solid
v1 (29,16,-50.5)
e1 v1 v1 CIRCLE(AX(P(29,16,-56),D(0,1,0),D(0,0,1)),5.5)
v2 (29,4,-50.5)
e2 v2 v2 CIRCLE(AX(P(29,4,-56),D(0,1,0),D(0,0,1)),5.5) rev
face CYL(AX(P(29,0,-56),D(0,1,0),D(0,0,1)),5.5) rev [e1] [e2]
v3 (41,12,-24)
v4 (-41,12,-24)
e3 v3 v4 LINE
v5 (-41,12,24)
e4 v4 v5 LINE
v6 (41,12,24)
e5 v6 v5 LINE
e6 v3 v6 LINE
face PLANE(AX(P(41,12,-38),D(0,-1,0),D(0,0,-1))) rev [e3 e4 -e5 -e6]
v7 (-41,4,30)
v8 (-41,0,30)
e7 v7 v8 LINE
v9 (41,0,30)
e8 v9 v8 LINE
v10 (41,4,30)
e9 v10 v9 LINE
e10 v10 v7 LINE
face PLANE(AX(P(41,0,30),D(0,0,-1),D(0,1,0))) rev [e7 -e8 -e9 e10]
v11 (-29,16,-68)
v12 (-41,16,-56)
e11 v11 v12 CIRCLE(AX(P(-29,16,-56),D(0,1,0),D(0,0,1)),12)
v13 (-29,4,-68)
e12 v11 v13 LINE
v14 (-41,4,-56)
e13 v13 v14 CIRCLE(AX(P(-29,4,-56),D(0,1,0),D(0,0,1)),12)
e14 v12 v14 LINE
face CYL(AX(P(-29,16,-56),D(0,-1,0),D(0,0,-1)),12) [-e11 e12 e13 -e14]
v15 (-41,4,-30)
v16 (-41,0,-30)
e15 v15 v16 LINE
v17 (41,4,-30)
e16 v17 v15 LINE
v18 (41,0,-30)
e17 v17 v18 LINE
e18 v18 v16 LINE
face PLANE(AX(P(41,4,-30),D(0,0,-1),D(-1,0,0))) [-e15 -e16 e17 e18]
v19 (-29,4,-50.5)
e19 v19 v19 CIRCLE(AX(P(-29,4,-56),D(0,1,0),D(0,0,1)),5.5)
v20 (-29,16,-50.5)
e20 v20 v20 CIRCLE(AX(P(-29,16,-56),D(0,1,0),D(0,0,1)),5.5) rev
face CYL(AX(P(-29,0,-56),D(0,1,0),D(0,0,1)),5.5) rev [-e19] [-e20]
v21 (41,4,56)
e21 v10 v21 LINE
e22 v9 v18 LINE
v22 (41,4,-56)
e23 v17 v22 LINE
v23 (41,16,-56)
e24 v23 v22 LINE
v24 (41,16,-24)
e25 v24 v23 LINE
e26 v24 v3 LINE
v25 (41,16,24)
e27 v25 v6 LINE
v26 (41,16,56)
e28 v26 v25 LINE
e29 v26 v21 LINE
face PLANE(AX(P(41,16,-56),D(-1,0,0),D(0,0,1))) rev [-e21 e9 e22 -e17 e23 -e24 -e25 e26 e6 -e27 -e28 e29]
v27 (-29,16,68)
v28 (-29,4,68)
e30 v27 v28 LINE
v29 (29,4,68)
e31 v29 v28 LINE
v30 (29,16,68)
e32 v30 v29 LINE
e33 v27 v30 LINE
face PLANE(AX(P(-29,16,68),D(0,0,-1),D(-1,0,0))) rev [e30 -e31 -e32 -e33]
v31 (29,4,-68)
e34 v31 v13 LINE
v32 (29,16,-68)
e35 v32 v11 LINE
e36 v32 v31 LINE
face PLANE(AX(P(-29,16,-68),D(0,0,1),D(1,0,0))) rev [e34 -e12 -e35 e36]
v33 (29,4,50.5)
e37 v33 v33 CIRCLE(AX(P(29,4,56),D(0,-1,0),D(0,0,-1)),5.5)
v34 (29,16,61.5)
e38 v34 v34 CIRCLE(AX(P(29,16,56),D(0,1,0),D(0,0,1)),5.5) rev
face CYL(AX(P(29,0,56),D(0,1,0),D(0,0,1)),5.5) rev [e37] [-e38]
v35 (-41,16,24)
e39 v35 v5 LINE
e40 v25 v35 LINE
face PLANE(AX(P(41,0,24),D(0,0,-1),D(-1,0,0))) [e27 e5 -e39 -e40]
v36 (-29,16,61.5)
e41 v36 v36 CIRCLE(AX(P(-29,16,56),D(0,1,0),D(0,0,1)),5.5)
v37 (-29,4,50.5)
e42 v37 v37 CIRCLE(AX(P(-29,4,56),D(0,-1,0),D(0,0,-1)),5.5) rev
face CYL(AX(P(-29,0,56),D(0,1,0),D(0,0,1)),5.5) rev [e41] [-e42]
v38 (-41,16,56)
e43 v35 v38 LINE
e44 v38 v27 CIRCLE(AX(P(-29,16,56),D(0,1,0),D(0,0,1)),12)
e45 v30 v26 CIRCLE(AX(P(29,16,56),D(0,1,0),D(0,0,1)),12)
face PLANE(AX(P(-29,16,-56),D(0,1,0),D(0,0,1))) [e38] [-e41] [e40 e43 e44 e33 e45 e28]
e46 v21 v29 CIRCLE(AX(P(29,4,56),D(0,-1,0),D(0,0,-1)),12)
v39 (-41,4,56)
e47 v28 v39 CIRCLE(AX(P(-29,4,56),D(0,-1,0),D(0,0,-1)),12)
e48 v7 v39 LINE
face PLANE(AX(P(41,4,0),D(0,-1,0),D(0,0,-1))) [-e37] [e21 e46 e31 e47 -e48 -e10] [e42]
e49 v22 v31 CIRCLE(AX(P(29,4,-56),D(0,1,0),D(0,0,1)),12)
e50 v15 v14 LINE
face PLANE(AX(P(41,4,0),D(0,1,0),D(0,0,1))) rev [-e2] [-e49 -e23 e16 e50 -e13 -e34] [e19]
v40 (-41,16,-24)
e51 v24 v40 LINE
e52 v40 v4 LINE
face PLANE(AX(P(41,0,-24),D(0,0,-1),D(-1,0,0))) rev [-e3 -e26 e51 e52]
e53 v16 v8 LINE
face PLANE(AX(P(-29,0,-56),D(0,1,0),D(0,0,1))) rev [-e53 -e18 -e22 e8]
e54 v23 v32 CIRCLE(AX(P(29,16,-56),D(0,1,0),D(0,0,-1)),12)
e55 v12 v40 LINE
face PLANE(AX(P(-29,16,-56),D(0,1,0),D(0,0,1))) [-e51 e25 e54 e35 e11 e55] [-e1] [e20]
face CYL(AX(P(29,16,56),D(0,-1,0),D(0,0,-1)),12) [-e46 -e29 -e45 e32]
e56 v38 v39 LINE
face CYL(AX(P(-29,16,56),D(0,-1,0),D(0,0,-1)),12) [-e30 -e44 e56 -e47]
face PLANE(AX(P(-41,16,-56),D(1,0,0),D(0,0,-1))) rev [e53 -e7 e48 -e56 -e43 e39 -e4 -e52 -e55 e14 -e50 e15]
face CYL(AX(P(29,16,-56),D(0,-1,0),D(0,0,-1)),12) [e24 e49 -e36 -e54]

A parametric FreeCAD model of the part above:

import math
import FreeCAD as App
import Part
import Sketcher

V = App.Vector
Q = App.Units.Quantity

doc = App.newDocument("Part")
params = doc.addObject("Spreadsheet::Sheet", "Params")
for row, (alias, value) in enumerate([
    ("sketch1_radius", "12 mm"),
    ("sketch1_width", "58 mm"),
    ("sketch1_height", "112 mm"),
    ("pad1_length", "16 mm"),
    ("sketch2_diameter", "11 mm"),
    ("sketch3_width", "4 mm"),
    ("sketch3_height", "76 mm"),
    ("sketch4_width", "4 mm"),
    ("sketch4_height", "30 mm"),
    ("sketch5_width", "4 mm"),
    ("sketch5_height", "8 mm"),
    ("sketch6_width", "4 mm"),
    ("sketch6_height", "7 mm"),
    ("pad2_length", "82 mm"),
    ("sketch7_width", "4 mm"),
    ("sketch7_height", "7 mm"),
    ("pad3_length", "82 mm"),
], start=1):
    params.set(f"A{row}", alias)
    params.set(f"B{row}", "=" + value)
    params.setAlias(f"B{row}", alias)

body = doc.addObject("PartDesign::Body", "Body")

# Sketch on XZ plane
sketch1 = doc.addObject("Sketcher::SketchObject", "Sketch")
body.addObject(sketch1)
sketch1.AttachmentSupport = (doc.XZ_Plane, [""])
sketch1.MapMode = "FlatFace"
sketch1.addGeometry([
    Part.LineSegment(V(29, -68, 0), V(-29, -68, 0)),  # 0
    Part.ArcOfCircle(Part.Circle(V(-29, -56, 0), V(0, 0, 1), 12), math.radians(-180), math.radians(-90)),  # 1
    Part.LineSegment(V(-41, -56, 0), V(-41, 56, 0)),  # 2
    Part.ArcOfCircle(Part.Circle(V(-29, 56, 0), V(0, 0, 1), 12), math.radians(90), math.radians(180)),  # 3
    Part.LineSegment(V(-29, 68, 0), V(29, 68, 0)),  # 4
    Part.ArcOfCircle(Part.Circle(V(29, 56, 0), V(0, 0, 1), 12), math.radians(0), math.radians(90)),  # 5
    Part.LineSegment(V(41, 56, 0), V(41, -56, 0)),  # 6
    Part.ArcOfCircle(Part.Circle(V(29, -56, 0), V(0, 0, 1), 12), math.radians(-90), math.radians(0)),  # 7
], False)
sketch1.addConstraint([
    Sketcher.Constraint("Tangent", 0, 2, 1, 2),
    Sketcher.Constraint("Tangent", 1, 1, 2, 1),
    Sketcher.Constraint("Tangent", 2, 2, 3, 2),
    Sketcher.Constraint("Tangent", 3, 1, 4, 1),
    Sketcher.Constraint("Tangent", 4, 2, 5, 2),
    Sketcher.Constraint("Tangent", 5, 1, 6, 1),
    Sketcher.Constraint("Tangent", 6, 2, 7, 2),
    Sketcher.Constraint("Tangent", 7, 1, 0, 1),
    Sketcher.Constraint("Horizontal", 0),
    Sketcher.Constraint("Vertical", 2),
    Sketcher.Constraint("Horizontal", 4),
    Sketcher.Constraint("Vertical", 6),
    Sketcher.Constraint("Equal", 1, 3),
    Sketcher.Constraint("Equal", 3, 5),
    Sketcher.Constraint("Equal", 5, 7),
    Sketcher.Constraint("Symmetric", 1, 3, 5, 3, -1, 1),
    Sketcher.Constraint("Radius", 1, Q("12 mm")),
    Sketcher.Constraint("DistanceX", 0, 2, 0, 1, Q("58 mm")),
    Sketcher.Constraint("DistanceY", 2, 1, 2, 2, Q("112 mm")),
])
sketch1.setExpression("Constraints[16]", "Params.sketch1_radius")
sketch1.setExpression("Constraints[17]", "Params.sketch1_width")
sketch1.setExpression("Constraints[18]", "Params.sketch1_height")
pad1 = doc.addObject("PartDesign::Pad", "Pad")
body.addObject(pad1)
pad1.Profile = sketch1
pad1.setExpression("Length", "Params.pad1_length")
pad1.Reversed = True

# Sketch on XZ plane
sketch2 = doc.addObject("Sketcher::SketchObject", "Sketch001")
body.addObject(sketch2)
sketch2.AttachmentSupport = (doc.XZ_Plane, [""])
sketch2.MapMode = "FlatFace"
sketch2.AttachmentOffset = App.Placement(V(0, 0, -16), App.Rotation())
sketch2.addGeometry([
    Part.Circle(V(-29, -56, 0), V(0, 0, 1), 5.5),
    Part.Circle(V(29, -56, 0), V(0, 0, 1), 5.5),
    Part.Circle(V(-29, 56, 0), V(0, 0, 1), 5.5),
    Part.Circle(V(29, 56, 0), V(0, 0, 1), 5.5),
], False)
sketch2.addConstraint([
    Sketcher.Constraint("Equal", 0, 1),
    Sketcher.Constraint("Equal", 1, 2),
    Sketcher.Constraint("Equal", 2, 3),
    Sketcher.Constraint("Symmetric", 1, 3, 2, 3, -1, 1),
    Sketcher.Constraint("Symmetric", 0, 3, 3, 3, -1, 1),
    Sketcher.Constraint("Symmetric", 0, 3, 1, 3, -2),
    Sketcher.Constraint("Diameter", 0, Q("11 mm")),
    Sketcher.Constraint("DistanceX", 0, 3, -1, 1, Q("29 mm")),
    Sketcher.Constraint("DistanceY", 0, 3, -1, 1, Q("56 mm")),
])
sketch2.setExpression("Constraints[6]", "Params.sketch2_diameter")
pocket1 = doc.addObject("PartDesign::Pocket", "Pocket")
body.addObject(pocket1)
pocket1.Profile = sketch2
pocket1.Type = "ThroughAll"
pocket1.Reversed = True

# Sketch on YZ plane
sketch3 = doc.addObject("Sketcher::SketchObject", "Sketch002")
body.addObject(sketch3)
sketch3.AttachmentSupport = (doc.YZ_Plane, [""])
sketch3.MapMode = "FlatFace"
sketch3.AttachmentOffset = App.Placement(V(0, 0, -41), App.Rotation())
sketch3.addGeometry([
    Part.LineSegment(V(16, -38, 0), V(12, -38, 0)),
    Part.LineSegment(V(12, -38, 0), V(12, 38, 0)),
    Part.LineSegment(V(12, 38, 0), V(16, 38, 0)),
    Part.LineSegment(V(16, 38, 0), V(16, -38, 0)),
], False)
sketch3.addConstraint([
    Sketcher.Constraint("Coincident", 0, 2, 1, 1),
    Sketcher.Constraint("Coincident", 1, 2, 2, 1),
    Sketcher.Constraint("Coincident", 2, 2, 3, 1),
    Sketcher.Constraint("Coincident", 3, 2, 0, 1),
    Sketcher.Constraint("Horizontal", 0),
    Sketcher.Constraint("Vertical", 1),
    Sketcher.Constraint("Horizontal", 2),
    Sketcher.Constraint("Vertical", 3),
    Sketcher.Constraint("DistanceX", 0, 2, 0, 1, Q("4 mm")),
    Sketcher.Constraint("DistanceY", 1, 1, 1, 2, Q("76 mm")),
    Sketcher.Constraint("DistanceX", -1, 1, 0, 2, Q("12 mm")),
    Sketcher.Constraint("DistanceY", 0, 2, -1, 1, Q("38 mm")),
])
sketch3.setExpression("Constraints[8]", "Params.sketch3_width")
sketch3.setExpression("Constraints[9]", "Params.sketch3_height")
pocket2 = doc.addObject("PartDesign::Pocket", "Pocket001")
body.addObject(pocket2)
pocket2.Profile = sketch3
pocket2.Type = "ThroughAll"
pocket2.Reversed = True

# Sketch on YZ plane
sketch4 = doc.addObject("Sketcher::SketchObject", "Sketch003")
body.addObject(sketch4)
sketch4.AttachmentSupport = (doc.YZ_Plane, [""])
sketch4.MapMode = "FlatFace"
sketch4.AttachmentOffset = App.Placement(V(0, 0, -41), App.Rotation())
sketch4.addGeometry([
    Part.LineSegment(V(0, -38, 0), V(4, -38, 0)),  # 0
    Part.LineSegment(V(4, -38, 0), V(4, -68, 0)),  # 1
    Part.LineSegment(V(4, -68, 0), V(0, -68, 0)),  # 2
    Part.LineSegment(V(0, -68, 0), V(0, -38, 0)),  # 3
    Part.LineSegment(V(4, 38, 0), V(0, 38, 0)),  # 4
    Part.LineSegment(V(0, 38, 0), V(0, 68, 0)),  # 5
    Part.LineSegment(V(0, 68, 0), V(4, 68, 0)),  # 6
    Part.LineSegment(V(4, 68, 0), V(4, 38, 0)),  # 7
], False)
sketch4.addConstraint([
    Sketcher.Constraint("Coincident", 0, 2, 1, 1),
    Sketcher.Constraint("Coincident", 1, 2, 2, 1),
    Sketcher.Constraint("Coincident", 2, 2, 3, 1),
    Sketcher.Constraint("Coincident", 3, 2, 0, 1),
    Sketcher.Constraint("Coincident", 4, 2, 5, 1),
    Sketcher.Constraint("Coincident", 5, 2, 6, 1),
    Sketcher.Constraint("Coincident", 6, 2, 7, 1),
    Sketcher.Constraint("Coincident", 7, 2, 4, 1),
    Sketcher.Constraint("Horizontal", 0),
    Sketcher.Constraint("Vertical", 1),
    Sketcher.Constraint("Horizontal", 2),
    Sketcher.Constraint("Vertical", 3),
    Sketcher.Constraint("Horizontal", 4),
    Sketcher.Constraint("Vertical", 5),
    Sketcher.Constraint("Horizontal", 6),
    Sketcher.Constraint("Vertical", 7),
    Sketcher.Constraint("Symmetric", 3, 2, 4, 2, -1, 1),
    Sketcher.Constraint("Symmetric", 2, 2, 5, 2, -1),
    Sketcher.Constraint("Vertical", 1, 2, 6, 2),
    Sketcher.Constraint("DistanceX", 0, 1, 0, 2, Q("4 mm")),
    Sketcher.Constraint("DistanceY", 1, 2, 1, 1, Q("30 mm")),
    Sketcher.Constraint("DistanceY", 0, 2, -1, 1, Q("38 mm")),
])
sketch4.setExpression("Constraints[19]", "Params.sketch4_width")
sketch4.setExpression("Constraints[20]", "Params.sketch4_height")
pocket3 = doc.addObject("PartDesign::Pocket", "Pocket002")
body.addObject(pocket3)
pocket3.Profile = sketch4
pocket3.Type = "ThroughAll"
pocket3.Reversed = True

# Sketch on YZ plane
sketch5 = doc.addObject("Sketcher::SketchObject", "Sketch004")
body.addObject(sketch5)
sketch5.AttachmentSupport = (doc.YZ_Plane, [""])
sketch5.MapMode = "FlatFace"
sketch5.AttachmentOffset = App.Placement(V(0, 0, -41), App.Rotation())
sketch5.addGeometry([
    Part.LineSegment(V(4, 30, 0), V(0, 30, 0)),  # 0
    Part.LineSegment(V(0, 30, 0), V(0, 38, 0)),  # 1
    Part.LineSegment(V(0, 38, 0), V(4, 38, 0)),  # 2
    Part.LineSegment(V(4, 38, 0), V(4, 30, 0)),  # 3
    Part.LineSegment(V(4, -38, 0), V(0, -38, 0)),  # 4
    Part.LineSegment(V(0, -38, 0), V(0, -30, 0)),  # 5
    Part.LineSegment(V(0, -30, 0), V(4, -30, 0)),  # 6
    Part.LineSegment(V(4, -30, 0), V(4, -38, 0)),  # 7
], False)
sketch5.addConstraint([
    Sketcher.Constraint("Coincident", 0, 2, 1, 1),
    Sketcher.Constraint("Coincident", 1, 2, 2, 1),
    Sketcher.Constraint("Coincident", 2, 2, 3, 1),
    Sketcher.Constraint("Coincident", 3, 2, 0, 1),
    Sketcher.Constraint("Coincident", 4, 2, 5, 1),
    Sketcher.Constraint("Coincident", 5, 2, 6, 1),
    Sketcher.Constraint("Coincident", 6, 2, 7, 1),
    Sketcher.Constraint("Coincident", 7, 2, 4, 1),
    Sketcher.Constraint("Horizontal", 0),
    Sketcher.Constraint("Vertical", 1),
    Sketcher.Constraint("Horizontal", 2),
    Sketcher.Constraint("Vertical", 3),
    Sketcher.Constraint("Horizontal", 4),
    Sketcher.Constraint("Vertical", 5),
    Sketcher.Constraint("Horizontal", 6),
    Sketcher.Constraint("Vertical", 7),
    Sketcher.Constraint("Symmetric", 1, 2, 4, 2, -1, 1),
    Sketcher.Constraint("Symmetric", 0, 2, 5, 2, -1),
    Sketcher.Constraint("Vertical", 3, 2, 6, 2),
    Sketcher.Constraint("DistanceX", 0, 2, 0, 1, Q("4 mm")),
    Sketcher.Constraint("DistanceY", 1, 1, 1, 2, Q("8 mm")),
    Sketcher.Constraint("DistanceY", -1, 1, 0, 2, Q("30 mm")),
])
sketch5.setExpression("Constraints[19]", "Params.sketch5_width")
sketch5.setExpression("Constraints[20]", "Params.sketch5_height")
pocket4 = doc.addObject("PartDesign::Pocket", "Pocket003")
body.addObject(pocket4)
pocket4.Profile = sketch5
pocket4.Type = "ThroughAll"
pocket4.Reversed = True

# Sketch on YZ plane
sketch6 = doc.addObject("Sketcher::SketchObject", "Sketch005")
body.addObject(sketch6)
sketch6.AttachmentSupport = (doc.YZ_Plane, [""])
sketch6.MapMode = "FlatFace"
sketch6.AttachmentOffset = App.Placement(V(0, 0, -41), App.Rotation())
sketch6.addGeometry([
    Part.LineSegment(V(16, -38, 0), V(12, -38, 0)),  # 0
    Part.LineSegment(V(12, -38, 0), V(12, -31, 0)),  # 1
    Part.LineSegment(V(12, -31, 0), V(16, -31, 0)),  # 2
    Part.LineSegment(V(16, -31, 0), V(16, -38, 0)),  # 3
    Part.LineSegment(V(16, 31, 0), V(12, 31, 0)),  # 4
    Part.LineSegment(V(12, 31, 0), V(12, 38, 0)),  # 5
    Part.LineSegment(V(12, 38, 0), V(16, 38, 0)),  # 6
    Part.LineSegment(V(16, 38, 0), V(16, 31, 0)),  # 7
], False)
sketch6.addConstraint([
    Sketcher.Constraint("Coincident", 0, 2, 1, 1),
    Sketcher.Constraint("Coincident", 1, 2, 2, 1),
    Sketcher.Constraint("Coincident", 2, 2, 3, 1),
    Sketcher.Constraint("Coincident", 3, 2, 0, 1),
    Sketcher.Constraint("Coincident", 4, 2, 5, 1),
    Sketcher.Constraint("Coincident", 5, 2, 6, 1),
    Sketcher.Constraint("Coincident", 6, 2, 7, 1),
    Sketcher.Constraint("Coincident", 7, 2, 4, 1),
    Sketcher.Constraint("Horizontal", 0),
    Sketcher.Constraint("Vertical", 1),
    Sketcher.Constraint("Horizontal", 2),
    Sketcher.Constraint("Vertical", 3),
    Sketcher.Constraint("Horizontal", 4),
    Sketcher.Constraint("Vertical", 5),
    Sketcher.Constraint("Horizontal", 6),
    Sketcher.Constraint("Vertical", 7),
    Sketcher.Constraint("Symmetric", 1, 2, 4, 2, -1),
    Sketcher.Constraint("Symmetric", 3, 2, 6, 2, -1),
    Sketcher.Constraint("DistanceX", 0, 2, 0, 1, Q("4 mm")),
    Sketcher.Constraint("DistanceY", 1, 1, 1, 2, Q("7 mm")),
    Sketcher.Constraint("DistanceX", -1, 1, 0, 2, Q("12 mm")),
    Sketcher.Constraint("DistanceY", 0, 2, -1, 1, Q("38 mm")),
])
sketch6.setExpression("Constraints[18]", "Params.sketch6_width")
sketch6.setExpression("Constraints[19]", "Params.sketch6_height")
pad2 = doc.addObject("PartDesign::Pad", "Pad001")
body.addObject(pad2)
pad2.Profile = sketch6
pad2.setExpression("Length", "Params.pad2_length")

# Sketch on YZ plane
sketch7 = doc.addObject("Sketcher::SketchObject", "Sketch006")
body.addObject(sketch7)
sketch7.AttachmentSupport = (doc.YZ_Plane, [""])
sketch7.MapMode = "FlatFace"
sketch7.AttachmentOffset = App.Placement(V(0, 0, -41), App.Rotation())
sketch7.addGeometry([
    Part.LineSegment(V(16, -31, 0), V(12, -31, 0)),  # 0
    Part.LineSegment(V(12, -31, 0), V(12, -24, 0)),  # 1
    Part.LineSegment(V(12, -24, 0), V(16, -24, 0)),  # 2
    Part.LineSegment(V(16, -24, 0), V(16, -31, 0)),  # 3
    Part.LineSegment(V(16, 24, 0), V(12, 24, 0)),  # 4
    Part.LineSegment(V(12, 24, 0), V(12, 31, 0)),  # 5
    Part.LineSegment(V(12, 31, 0), V(16, 31, 0)),  # 6
    Part.LineSegment(V(16, 31, 0), V(16, 24, 0)),  # 7
], False)
sketch7.addConstraint([
    Sketcher.Constraint("Coincident", 0, 2, 1, 1),
    Sketcher.Constraint("Coincident", 1, 2, 2, 1),
    Sketcher.Constraint("Coincident", 2, 2, 3, 1),
    Sketcher.Constraint("Coincident", 3, 2, 0, 1),
    Sketcher.Constraint("Coincident", 4, 2, 5, 1),
    Sketcher.Constraint("Coincident", 5, 2, 6, 1),
    Sketcher.Constraint("Coincident", 6, 2, 7, 1),
    Sketcher.Constraint("Coincident", 7, 2, 4, 1),
    Sketcher.Constraint("Horizontal", 0),
    Sketcher.Constraint("Vertical", 1),
    Sketcher.Constraint("Horizontal", 2),
    Sketcher.Constraint("Vertical", 3),
    Sketcher.Constraint("Horizontal", 4),
    Sketcher.Constraint("Vertical", 5),
    Sketcher.Constraint("Horizontal", 6),
    Sketcher.Constraint("Vertical", 7),
    Sketcher.Constraint("Symmetric", 1, 2, 4, 2, -1),
    Sketcher.Constraint("Symmetric", 3, 2, 6, 2, -1),
    Sketcher.Constraint("DistanceX", 0, 2, 0, 1, Q("4 mm")),
    Sketcher.Constraint("DistanceY", 1, 1, 1, 2, Q("7 mm")),
    Sketcher.Constraint("DistanceX", -1, 1, 0, 2, Q("12 mm")),
    Sketcher.Constraint("DistanceY", 0, 2, -1, 1, Q("31 mm")),
])
sketch7.setExpression("Constraints[18]", "Params.sketch7_width")
sketch7.setExpression("Constraints[19]", "Params.sketch7_height")
pad3 = doc.addObject("PartDesign::Pad", "Pad002")
body.addObject(pad3)
pad3.Profile = sketch7
pad3.setExpression("Length", "Params.pad3_length")

doc.recompute()
